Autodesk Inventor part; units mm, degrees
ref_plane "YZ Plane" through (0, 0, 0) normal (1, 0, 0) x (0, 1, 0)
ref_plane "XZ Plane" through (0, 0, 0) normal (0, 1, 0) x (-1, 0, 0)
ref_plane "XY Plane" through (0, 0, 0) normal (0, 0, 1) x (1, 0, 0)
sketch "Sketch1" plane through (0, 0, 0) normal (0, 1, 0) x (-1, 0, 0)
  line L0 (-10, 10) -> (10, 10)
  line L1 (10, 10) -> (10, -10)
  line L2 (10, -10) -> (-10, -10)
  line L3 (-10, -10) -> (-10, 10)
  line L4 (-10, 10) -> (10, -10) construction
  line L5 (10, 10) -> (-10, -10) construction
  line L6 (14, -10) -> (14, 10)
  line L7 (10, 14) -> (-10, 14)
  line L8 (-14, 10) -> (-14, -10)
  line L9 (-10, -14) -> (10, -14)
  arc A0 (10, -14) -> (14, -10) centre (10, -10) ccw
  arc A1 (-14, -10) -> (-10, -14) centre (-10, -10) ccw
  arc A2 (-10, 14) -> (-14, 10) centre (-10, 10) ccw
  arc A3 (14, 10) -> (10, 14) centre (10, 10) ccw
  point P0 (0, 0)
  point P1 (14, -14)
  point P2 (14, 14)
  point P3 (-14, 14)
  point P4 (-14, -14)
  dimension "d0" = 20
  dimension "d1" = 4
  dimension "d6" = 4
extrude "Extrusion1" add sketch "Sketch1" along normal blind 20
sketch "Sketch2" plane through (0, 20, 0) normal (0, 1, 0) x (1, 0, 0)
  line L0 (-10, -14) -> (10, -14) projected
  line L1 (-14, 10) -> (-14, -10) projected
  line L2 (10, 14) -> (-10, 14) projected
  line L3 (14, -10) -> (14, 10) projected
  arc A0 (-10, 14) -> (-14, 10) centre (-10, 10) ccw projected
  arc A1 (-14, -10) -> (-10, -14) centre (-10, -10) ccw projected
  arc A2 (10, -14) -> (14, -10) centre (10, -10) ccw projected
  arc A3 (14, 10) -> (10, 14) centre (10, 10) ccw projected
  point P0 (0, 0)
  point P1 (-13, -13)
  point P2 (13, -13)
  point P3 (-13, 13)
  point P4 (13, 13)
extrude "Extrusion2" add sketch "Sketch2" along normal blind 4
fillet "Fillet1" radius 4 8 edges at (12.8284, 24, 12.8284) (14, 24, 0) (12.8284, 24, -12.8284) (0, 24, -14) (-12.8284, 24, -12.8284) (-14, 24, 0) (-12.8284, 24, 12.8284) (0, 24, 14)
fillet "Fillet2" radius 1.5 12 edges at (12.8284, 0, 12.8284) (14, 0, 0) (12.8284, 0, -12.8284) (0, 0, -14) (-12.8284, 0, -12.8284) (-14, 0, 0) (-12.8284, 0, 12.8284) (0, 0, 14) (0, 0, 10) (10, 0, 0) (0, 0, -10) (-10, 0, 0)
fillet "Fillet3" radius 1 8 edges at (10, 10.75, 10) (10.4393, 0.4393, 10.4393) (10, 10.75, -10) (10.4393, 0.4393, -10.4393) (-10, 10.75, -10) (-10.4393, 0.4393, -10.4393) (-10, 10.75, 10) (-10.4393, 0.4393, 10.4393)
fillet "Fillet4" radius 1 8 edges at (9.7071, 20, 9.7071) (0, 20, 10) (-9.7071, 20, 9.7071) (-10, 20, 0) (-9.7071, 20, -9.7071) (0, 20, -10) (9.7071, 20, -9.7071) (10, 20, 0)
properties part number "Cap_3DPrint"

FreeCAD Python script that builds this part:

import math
import FreeCAD as App
import Part
import Sketcher
from FreeCAD import Vector


def edges_at(feature, points):
    """Names of the edges that pass closest to the given points."""
    edges = feature.Shape.Edges
    near = lambda p: min(range(len(edges)), key=lambda i: edges[i].distToShape(Part.Vertex(*p))[0])
    return sorted({f"Edge{near(p) + 1}" for p in points})


def add_polygon(sketch, points):
    """Adds a closed chain of lines whose ends are joined by coincident constraints."""
    first, n = sketch.GeometryCount, len(points)
    for a, b in zip(points, points[1:] + points[:1]):
        sketch.addGeometry(Part.LineSegment(App.Vector(*a, 0), App.Vector(*b, 0)), False)
    for i in range(n):
        sketch.addConstraint(Sketcher.Constraint("Coincident", first + i, 2, first + (i + 1) % n, 1))

doc = App.newDocument("Part")
body = doc.addObject("PartDesign::Body", "Body")

# Sketch on XZ plane
sketch1 = body.newObject("Sketcher::SketchObject", "Sketch")
sketch1.AttachmentSupport = (doc.getObject("XZ_Plane"), [""])
sketch1.MapMode = "FlatFace"
sketch1.addGeometry(Part.ArcOfCircle(Part.Circle(Vector(-10, -10, 0), Vector(0, 0, 1), 4), math.radians(180), math.radians(270)), False)  # 0
sketch1.addGeometry(Part.LineSegment(Vector(-14, -10, 0), Vector(-14, 10, 0)), False)  # 1
sketch1.addGeometry(Part.ArcOfCircle(Part.Circle(Vector(-10, 10, 0), Vector(0, 0, 1), 4), math.radians(90), math.radians(180)), False)  # 2
sketch1.addGeometry(Part.LineSegment(Vector(-10, 14, 0), Vector(10, 14, 0)), False)  # 3
sketch1.addGeometry(Part.ArcOfCircle(Part.Circle(Vector(10, 10, 0), Vector(0, 0, 1), 4), math.radians(0), math.radians(90)), False)  # 4
sketch1.addGeometry(Part.LineSegment(Vector(14, 10, 0), Vector(14, -10, 0)), False)  # 5
sketch1.addGeometry(Part.ArcOfCircle(Part.Circle(Vector(10, -10, 0), Vector(0, 0, 1), 4), math.radians(-90), math.radians(0)), False)  # 6
sketch1.addGeometry(Part.LineSegment(Vector(10, -14, 0), Vector(-10, -14, 0)), False)  # 7
add_polygon(sketch1, [(10, -10), (10, 10), (-10, 10), (-10, -10)])  # lines 8-11
sketch1.addConstraint(Sketcher.Constraint("Tangent", 0, 1, 1, 1))
sketch1.addConstraint(Sketcher.Constraint("Tangent", 1, 2, 2, 2))
sketch1.addConstraint(Sketcher.Constraint("Tangent", 2, 1, 3, 1))
sketch1.addConstraint(Sketcher.Constraint("Tangent", 3, 2, 4, 2))
sketch1.addConstraint(Sketcher.Constraint("Tangent", 4, 1, 5, 1))
sketch1.addConstraint(Sketcher.Constraint("Tangent", 5, 2, 6, 2))
sketch1.addConstraint(Sketcher.Constraint("Tangent", 6, 1, 7, 1))
sketch1.addConstraint(Sketcher.Constraint("Tangent", 7, 2, 0, 2))
sketch1.addConstraint(Sketcher.Constraint("Vertical", 1))
sketch1.addConstraint(Sketcher.Constraint("Horizontal", 3))
sketch1.addConstraint(Sketcher.Constraint("Vertical", 5))
sketch1.addConstraint(Sketcher.Constraint("Horizontal", 7))
sketch1.addConstraint(Sketcher.Constraint("Vertical", 8))
sketch1.addConstraint(Sketcher.Constraint("Horizontal", 9))
sketch1.addConstraint(Sketcher.Constraint("Vertical", 10))
sketch1.addConstraint(Sketcher.Constraint("Horizontal", 11))
sketch1.addConstraint(Sketcher.Constraint("Coincident", 8, 2, 4, 3))
sketch1.addConstraint(Sketcher.Constraint("Coincident", 9, 2, 2, 3))
sketch1.addConstraint(Sketcher.Constraint("Coincident", 10, 2, 0, 3))
sketch1.addConstraint(Sketcher.Constraint("Equal", 4, 6))
sketch1.addConstraint(Sketcher.Constraint("Symmetric", 0, 3, 4, 3, -1, 1))
sketch1.addConstraint(Sketcher.Constraint("Equal", 11, 1))
sketch1.addConstraint(Sketcher.Constraint("Radius", 0, 4.0))
sketch1.addConstraint(Sketcher.Constraint("DistanceX", 3, 1, 3, 2, 20.0))
pad1 = body.newObject("PartDesign::Pad", "Pad")
pad1.Profile = sketch1
pad1.Length = 20
pad1.Reversed = True

# Sketch on XZ plane
sketch2 = body.newObject("Sketcher::SketchObject", "Sketch001")
sketch2.AttachmentSupport = (doc.getObject("XZ_Plane"), [""])
sketch2.MapMode = "FlatFace"
sketch2.AttachmentOffset = App.Placement(Vector(0, 0, -20), App.Rotation())
sketch2.addGeometry(Part.ArcOfCircle(Part.Circle(Vector(-10, 10, 0), Vector(0, 0, 1), 4), math.radians(90), math.radians(180)), False)
sketch2.addGeometry(Part.LineSegment(Vector(-10, 14, 0), Vector(10, 14, 0)), False)
sketch2.addGeometry(Part.ArcOfCircle(Part.Circle(Vector(10, 10, 0), Vector(0, 0, 1), 4), math.radians(0), math.radians(90)), False)
sketch2.addGeometry(Part.LineSegment(Vector(14, 10, 0), Vector(14, -10, 0)), False)
sketch2.addGeometry(Part.ArcOfCircle(Part.Circle(Vector(10, -10, 0), Vector(0, 0, 1), 4), math.radians(-90), math.radians(0)), False)
sketch2.addGeometry(Part.LineSegment(Vector(10, -14, 0), Vector(-10, -14, 0)), False)
sketch2.addGeometry(Part.ArcOfCircle(Part.Circle(Vector(-10, -10, 0), Vector(0, 0, 1), 4), math.radians(180), math.radians(270)), False)
sketch2.addGeometry(Part.LineSegment(Vector(-14, -10, 0), Vector(-14, 10, 0)), False)
sketch2.addConstraint(Sketcher.Constraint("Tangent", 0, 1, 1, 1))
sketch2.addConstraint(Sketcher.Constraint("Tangent", 1, 2, 2, 2))
sketch2.addConstraint(Sketcher.Constraint("Tangent", 2, 1, 3, 1))
sketch2.addConstraint(Sketcher.Constraint("Tangent", 3, 2, 4, 2))
sketch2.addConstraint(Sketcher.Constraint("Tangent", 4, 1, 5, 1))
sketch2.addConstraint(Sketcher.Constraint("Tangent", 5, 2, 6, 2))
sketch2.addConstraint(Sketcher.Constraint("Tangent", 6, 1, 7, 1))
sketch2.addConstraint(Sketcher.Constraint("Tangent", 7, 2, 0, 2))
sketch2.addConstraint(Sketcher.Constraint("Horizontal", 1))
sketch2.addConstraint(Sketcher.Constraint("Vertical", 3))
sketch2.addConstraint(Sketcher.Constraint("Horizontal", 5))
sketch2.addConstraint(Sketcher.Constraint("Vertical", 7))
sketch2.addConstraint(Sketcher.Constraint("Equal", 0, 2))
sketch2.addConstraint(Sketcher.Constraint("Equal", 2, 4))
sketch2.addConstraint(Sketcher.Constraint("Equal", 4, 6))
sketch2.addConstraint(Sketcher.Constraint("Symmetric", 0, 3, 4, 3, -1, 1))
sketch2.addConstraint(Sketcher.Constraint("Equal", 5, 3))
sketch2.addConstraint(Sketcher.Constraint("Radius", 0, 4.0))
sketch2.addConstraint(Sketcher.Constraint("DistanceX", 1, 1, 1, 2, 20.0))
pad2 = body.newObject("PartDesign::Pad", "Pad001")
pad2.Profile = sketch2
pad2.Length = 4
pad2.Reversed = True
doc.recompute()

fillet = body.newObject("PartDesign::Fillet", "Fillet")
fillet.Base = (pad2, edges_at(pad2, [
    (12.828, 24, 12.828),
    (14, 24, 0),
    (12.828, 24, -12.828),
    (0, 24, -14),
    (-12.828, 24, -12.828),
    (-14, 24, 0),
    (-12.828, 24, 12.828),
    (0, 24, 14),
]))
fillet.Radius = 4
doc.recompute()

fillet2 = body.newObject("PartDesign::Fillet", "Fillet001")
fillet2.Base = (fillet, edges_at(fillet, [
    (12.828, 0, 12.828),
    (14, 0, 0),
    (12.828, 0, -12.828),
    (0, 0, -14),
    (-12.828, 0, -12.828),
    (-14, 0, 0),
    (-12.828, 0, 12.828),
    (0, 0, 14),
    (0, 0, 10),
    (10, 0, 0),
    (0, 0, -10),
    (-10, 0, 0),
]))
fillet2.Radius = 1.5
doc.recompute()

fillet3 = body.newObject("PartDesign::Fillet", "Fillet002")
fillet3.Base = (fillet2, edges_at(fillet2, [
    (10, 10.75, 10),
    (10.439, 0.439, 10.439),
    (10, 10.75, -10),
    (10.439, 0.439, -10.439),
    (-10, 10.75, -10),
    (-10.439, 0.439, -10.439),
    (-10, 10.75, 10),
    (-10.439, 0.439, 10.439),
]))
fillet3.Radius = 1
doc.recompute()

fillet4 = body.newObject("PartDesign::Fillet", "Fillet003")
fillet4.Base = (fillet3, edges_at(fillet3, [
    (9.707, 20, 9.707),
    (0, 20, 10),
    (-9.707, 20, 9.707),
    (-10, 20, 0),
    (-9.707, 20, -9.707),
    (0, 20, -10),
    (9.707, 20, -9.707),
    (10, 20, 0),
]))
fillet4.Radius = 1

doc.recompute()
